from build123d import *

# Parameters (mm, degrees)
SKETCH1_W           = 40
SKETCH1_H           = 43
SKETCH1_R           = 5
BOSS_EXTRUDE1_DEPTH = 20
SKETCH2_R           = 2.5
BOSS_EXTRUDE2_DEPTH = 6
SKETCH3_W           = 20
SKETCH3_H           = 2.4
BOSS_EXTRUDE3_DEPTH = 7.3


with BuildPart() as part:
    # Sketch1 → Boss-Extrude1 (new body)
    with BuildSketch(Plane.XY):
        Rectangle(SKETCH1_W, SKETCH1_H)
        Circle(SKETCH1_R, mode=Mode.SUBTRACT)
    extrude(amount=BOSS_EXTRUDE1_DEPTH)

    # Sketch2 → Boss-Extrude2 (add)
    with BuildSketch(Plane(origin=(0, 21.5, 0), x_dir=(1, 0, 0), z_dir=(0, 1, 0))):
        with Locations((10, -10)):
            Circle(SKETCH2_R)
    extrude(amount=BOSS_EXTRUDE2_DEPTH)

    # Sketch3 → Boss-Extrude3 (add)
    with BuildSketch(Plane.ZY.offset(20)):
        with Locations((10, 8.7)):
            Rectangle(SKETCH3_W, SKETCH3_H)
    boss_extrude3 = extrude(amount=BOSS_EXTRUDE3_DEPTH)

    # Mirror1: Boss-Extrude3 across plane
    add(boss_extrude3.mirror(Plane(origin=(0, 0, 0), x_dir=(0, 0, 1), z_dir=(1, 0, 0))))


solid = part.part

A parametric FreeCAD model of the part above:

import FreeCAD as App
import Part
import Sketcher

V = App.Vector


def add_polygon(sketch, points):
    """Adds a closed chain of lines whose ends are joined by coincident constraints."""
    first, n = sketch.GeometryCount, len(points)
    for a, b in zip(points, points[1:] + points[:1]):
        sketch.addGeometry(Part.LineSegment(App.Vector(*a, 0), App.Vector(*b, 0)), False)
    for i in range(n):
        sketch.addConstraint(Sketcher.Constraint("Coincident", first + i, 2, first + (i + 1) % n, 1))

doc = App.newDocument("Part")
body = doc.addObject("PartDesign::Body", "Body")

sketch1 = body.newObject("Sketcher::SketchObject", "Sketch")
sketch1.AttachmentSupport = (doc.getObject("XY_Plane"), [""])
sketch1.MapMode = "FlatFace"
add_polygon(sketch1, [(-20, 22), (-20, -22), (20, -22), (20, 22)])
sketch1.addGeometry(Part.Circle(V(0, 0, 0), V(0, 0, 1), 5), False)
sketch1.addConstraint([
    Sketcher.Constraint("Vertical", 0),
    Sketcher.Constraint("Horizontal", 1),
    Sketcher.Constraint("Vertical", 2),
    Sketcher.Constraint("Horizontal", 3),
    Sketcher.Constraint("Coincident", 4, 3, -1, 1),
    Sketcher.Constraint("Symmetric", 0, 2, 2, 2, -1, 1),
    Sketcher.Constraint("Diameter", 4, 10.0),
    Sketcher.Constraint("DistanceX", 1, 1, 1, 2, 40.0),
    Sketcher.Constraint("DistanceY", 0, 2, 0, 1, 43.0),
])
pad1 = body.newObject("PartDesign::Pad", "Pad")
pad1.Profile = sketch1
pad1.Length = 20

sketch2 = body.newObject("Sketcher::SketchObject", "Sketch001")
sketch2.AttachmentSupport = (doc.getObject("XZ_Plane"), [""])
sketch2.MapMode = "FlatFace"
sketch2.AttachmentOffset = App.Placement(V(0, 0, -21.5), App.Rotation())
sketch2.addGeometry(Part.Circle(V(10, 10, 0), V(0, 0, 1), 2.5), False)
sketch2.addConstraint([
    Sketcher.Constraint("Diameter", 0, 5.0),
    Sketcher.Constraint("DistanceX", -1, 1, 0, 3, 10.0),
    Sketcher.Constraint("DistanceY", -1, 1, 0, 3, 10.0),
])
pad2 = body.newObject("PartDesign::Pad", "Pad001")
pad2.Profile = sketch2
pad2.Length = 6
pad2.Reversed = True

sketch3 = body.newObject("Sketcher::SketchObject", "Sketch002")
sketch3.AttachmentSupport = (doc.getObject("YZ_Plane"), [""])
sketch3.MapMode = "FlatFace"
sketch3.AttachmentOffset = App.Placement(V(0, 0, -20), App.Rotation())
add_polygon(sketch3, [(9.9, 0), (7.5, 0), (7.5, 20), (9.9, 20)])
sketch3.addConstraint([
    Sketcher.Constraint("Horizontal", 0),
    Sketcher.Constraint("Vertical", 1),
    Sketcher.Constraint("Horizontal", 2),
    Sketcher.Constraint("Vertical", 3),
    Sketcher.Constraint("PointOnObject", 0, 2, -1),
    Sketcher.Constraint("DistanceY", 1, 1, 1, 2, 20.0),
    Sketcher.Constraint("DistanceX", 0, 2, 0, 1, 2.4),
    Sketcher.Constraint("DistanceX", -1, 1, 0, 2, 7.5),
])
pad3 = body.newObject("PartDesign::Pad", "Pad002")
pad3.Profile = sketch3
pad3.Length = 7.3
pad3.Reversed = True
doc.recompute()

mirrored = body.newObject("PartDesign::Mirrored", "Mirrored")
mirrored.Originals = [pad3]
mirrored.MirrorPlane = (doc.getObject("YZ_Plane"), [""])
body.Tip = mirrored

doc.recompute()
